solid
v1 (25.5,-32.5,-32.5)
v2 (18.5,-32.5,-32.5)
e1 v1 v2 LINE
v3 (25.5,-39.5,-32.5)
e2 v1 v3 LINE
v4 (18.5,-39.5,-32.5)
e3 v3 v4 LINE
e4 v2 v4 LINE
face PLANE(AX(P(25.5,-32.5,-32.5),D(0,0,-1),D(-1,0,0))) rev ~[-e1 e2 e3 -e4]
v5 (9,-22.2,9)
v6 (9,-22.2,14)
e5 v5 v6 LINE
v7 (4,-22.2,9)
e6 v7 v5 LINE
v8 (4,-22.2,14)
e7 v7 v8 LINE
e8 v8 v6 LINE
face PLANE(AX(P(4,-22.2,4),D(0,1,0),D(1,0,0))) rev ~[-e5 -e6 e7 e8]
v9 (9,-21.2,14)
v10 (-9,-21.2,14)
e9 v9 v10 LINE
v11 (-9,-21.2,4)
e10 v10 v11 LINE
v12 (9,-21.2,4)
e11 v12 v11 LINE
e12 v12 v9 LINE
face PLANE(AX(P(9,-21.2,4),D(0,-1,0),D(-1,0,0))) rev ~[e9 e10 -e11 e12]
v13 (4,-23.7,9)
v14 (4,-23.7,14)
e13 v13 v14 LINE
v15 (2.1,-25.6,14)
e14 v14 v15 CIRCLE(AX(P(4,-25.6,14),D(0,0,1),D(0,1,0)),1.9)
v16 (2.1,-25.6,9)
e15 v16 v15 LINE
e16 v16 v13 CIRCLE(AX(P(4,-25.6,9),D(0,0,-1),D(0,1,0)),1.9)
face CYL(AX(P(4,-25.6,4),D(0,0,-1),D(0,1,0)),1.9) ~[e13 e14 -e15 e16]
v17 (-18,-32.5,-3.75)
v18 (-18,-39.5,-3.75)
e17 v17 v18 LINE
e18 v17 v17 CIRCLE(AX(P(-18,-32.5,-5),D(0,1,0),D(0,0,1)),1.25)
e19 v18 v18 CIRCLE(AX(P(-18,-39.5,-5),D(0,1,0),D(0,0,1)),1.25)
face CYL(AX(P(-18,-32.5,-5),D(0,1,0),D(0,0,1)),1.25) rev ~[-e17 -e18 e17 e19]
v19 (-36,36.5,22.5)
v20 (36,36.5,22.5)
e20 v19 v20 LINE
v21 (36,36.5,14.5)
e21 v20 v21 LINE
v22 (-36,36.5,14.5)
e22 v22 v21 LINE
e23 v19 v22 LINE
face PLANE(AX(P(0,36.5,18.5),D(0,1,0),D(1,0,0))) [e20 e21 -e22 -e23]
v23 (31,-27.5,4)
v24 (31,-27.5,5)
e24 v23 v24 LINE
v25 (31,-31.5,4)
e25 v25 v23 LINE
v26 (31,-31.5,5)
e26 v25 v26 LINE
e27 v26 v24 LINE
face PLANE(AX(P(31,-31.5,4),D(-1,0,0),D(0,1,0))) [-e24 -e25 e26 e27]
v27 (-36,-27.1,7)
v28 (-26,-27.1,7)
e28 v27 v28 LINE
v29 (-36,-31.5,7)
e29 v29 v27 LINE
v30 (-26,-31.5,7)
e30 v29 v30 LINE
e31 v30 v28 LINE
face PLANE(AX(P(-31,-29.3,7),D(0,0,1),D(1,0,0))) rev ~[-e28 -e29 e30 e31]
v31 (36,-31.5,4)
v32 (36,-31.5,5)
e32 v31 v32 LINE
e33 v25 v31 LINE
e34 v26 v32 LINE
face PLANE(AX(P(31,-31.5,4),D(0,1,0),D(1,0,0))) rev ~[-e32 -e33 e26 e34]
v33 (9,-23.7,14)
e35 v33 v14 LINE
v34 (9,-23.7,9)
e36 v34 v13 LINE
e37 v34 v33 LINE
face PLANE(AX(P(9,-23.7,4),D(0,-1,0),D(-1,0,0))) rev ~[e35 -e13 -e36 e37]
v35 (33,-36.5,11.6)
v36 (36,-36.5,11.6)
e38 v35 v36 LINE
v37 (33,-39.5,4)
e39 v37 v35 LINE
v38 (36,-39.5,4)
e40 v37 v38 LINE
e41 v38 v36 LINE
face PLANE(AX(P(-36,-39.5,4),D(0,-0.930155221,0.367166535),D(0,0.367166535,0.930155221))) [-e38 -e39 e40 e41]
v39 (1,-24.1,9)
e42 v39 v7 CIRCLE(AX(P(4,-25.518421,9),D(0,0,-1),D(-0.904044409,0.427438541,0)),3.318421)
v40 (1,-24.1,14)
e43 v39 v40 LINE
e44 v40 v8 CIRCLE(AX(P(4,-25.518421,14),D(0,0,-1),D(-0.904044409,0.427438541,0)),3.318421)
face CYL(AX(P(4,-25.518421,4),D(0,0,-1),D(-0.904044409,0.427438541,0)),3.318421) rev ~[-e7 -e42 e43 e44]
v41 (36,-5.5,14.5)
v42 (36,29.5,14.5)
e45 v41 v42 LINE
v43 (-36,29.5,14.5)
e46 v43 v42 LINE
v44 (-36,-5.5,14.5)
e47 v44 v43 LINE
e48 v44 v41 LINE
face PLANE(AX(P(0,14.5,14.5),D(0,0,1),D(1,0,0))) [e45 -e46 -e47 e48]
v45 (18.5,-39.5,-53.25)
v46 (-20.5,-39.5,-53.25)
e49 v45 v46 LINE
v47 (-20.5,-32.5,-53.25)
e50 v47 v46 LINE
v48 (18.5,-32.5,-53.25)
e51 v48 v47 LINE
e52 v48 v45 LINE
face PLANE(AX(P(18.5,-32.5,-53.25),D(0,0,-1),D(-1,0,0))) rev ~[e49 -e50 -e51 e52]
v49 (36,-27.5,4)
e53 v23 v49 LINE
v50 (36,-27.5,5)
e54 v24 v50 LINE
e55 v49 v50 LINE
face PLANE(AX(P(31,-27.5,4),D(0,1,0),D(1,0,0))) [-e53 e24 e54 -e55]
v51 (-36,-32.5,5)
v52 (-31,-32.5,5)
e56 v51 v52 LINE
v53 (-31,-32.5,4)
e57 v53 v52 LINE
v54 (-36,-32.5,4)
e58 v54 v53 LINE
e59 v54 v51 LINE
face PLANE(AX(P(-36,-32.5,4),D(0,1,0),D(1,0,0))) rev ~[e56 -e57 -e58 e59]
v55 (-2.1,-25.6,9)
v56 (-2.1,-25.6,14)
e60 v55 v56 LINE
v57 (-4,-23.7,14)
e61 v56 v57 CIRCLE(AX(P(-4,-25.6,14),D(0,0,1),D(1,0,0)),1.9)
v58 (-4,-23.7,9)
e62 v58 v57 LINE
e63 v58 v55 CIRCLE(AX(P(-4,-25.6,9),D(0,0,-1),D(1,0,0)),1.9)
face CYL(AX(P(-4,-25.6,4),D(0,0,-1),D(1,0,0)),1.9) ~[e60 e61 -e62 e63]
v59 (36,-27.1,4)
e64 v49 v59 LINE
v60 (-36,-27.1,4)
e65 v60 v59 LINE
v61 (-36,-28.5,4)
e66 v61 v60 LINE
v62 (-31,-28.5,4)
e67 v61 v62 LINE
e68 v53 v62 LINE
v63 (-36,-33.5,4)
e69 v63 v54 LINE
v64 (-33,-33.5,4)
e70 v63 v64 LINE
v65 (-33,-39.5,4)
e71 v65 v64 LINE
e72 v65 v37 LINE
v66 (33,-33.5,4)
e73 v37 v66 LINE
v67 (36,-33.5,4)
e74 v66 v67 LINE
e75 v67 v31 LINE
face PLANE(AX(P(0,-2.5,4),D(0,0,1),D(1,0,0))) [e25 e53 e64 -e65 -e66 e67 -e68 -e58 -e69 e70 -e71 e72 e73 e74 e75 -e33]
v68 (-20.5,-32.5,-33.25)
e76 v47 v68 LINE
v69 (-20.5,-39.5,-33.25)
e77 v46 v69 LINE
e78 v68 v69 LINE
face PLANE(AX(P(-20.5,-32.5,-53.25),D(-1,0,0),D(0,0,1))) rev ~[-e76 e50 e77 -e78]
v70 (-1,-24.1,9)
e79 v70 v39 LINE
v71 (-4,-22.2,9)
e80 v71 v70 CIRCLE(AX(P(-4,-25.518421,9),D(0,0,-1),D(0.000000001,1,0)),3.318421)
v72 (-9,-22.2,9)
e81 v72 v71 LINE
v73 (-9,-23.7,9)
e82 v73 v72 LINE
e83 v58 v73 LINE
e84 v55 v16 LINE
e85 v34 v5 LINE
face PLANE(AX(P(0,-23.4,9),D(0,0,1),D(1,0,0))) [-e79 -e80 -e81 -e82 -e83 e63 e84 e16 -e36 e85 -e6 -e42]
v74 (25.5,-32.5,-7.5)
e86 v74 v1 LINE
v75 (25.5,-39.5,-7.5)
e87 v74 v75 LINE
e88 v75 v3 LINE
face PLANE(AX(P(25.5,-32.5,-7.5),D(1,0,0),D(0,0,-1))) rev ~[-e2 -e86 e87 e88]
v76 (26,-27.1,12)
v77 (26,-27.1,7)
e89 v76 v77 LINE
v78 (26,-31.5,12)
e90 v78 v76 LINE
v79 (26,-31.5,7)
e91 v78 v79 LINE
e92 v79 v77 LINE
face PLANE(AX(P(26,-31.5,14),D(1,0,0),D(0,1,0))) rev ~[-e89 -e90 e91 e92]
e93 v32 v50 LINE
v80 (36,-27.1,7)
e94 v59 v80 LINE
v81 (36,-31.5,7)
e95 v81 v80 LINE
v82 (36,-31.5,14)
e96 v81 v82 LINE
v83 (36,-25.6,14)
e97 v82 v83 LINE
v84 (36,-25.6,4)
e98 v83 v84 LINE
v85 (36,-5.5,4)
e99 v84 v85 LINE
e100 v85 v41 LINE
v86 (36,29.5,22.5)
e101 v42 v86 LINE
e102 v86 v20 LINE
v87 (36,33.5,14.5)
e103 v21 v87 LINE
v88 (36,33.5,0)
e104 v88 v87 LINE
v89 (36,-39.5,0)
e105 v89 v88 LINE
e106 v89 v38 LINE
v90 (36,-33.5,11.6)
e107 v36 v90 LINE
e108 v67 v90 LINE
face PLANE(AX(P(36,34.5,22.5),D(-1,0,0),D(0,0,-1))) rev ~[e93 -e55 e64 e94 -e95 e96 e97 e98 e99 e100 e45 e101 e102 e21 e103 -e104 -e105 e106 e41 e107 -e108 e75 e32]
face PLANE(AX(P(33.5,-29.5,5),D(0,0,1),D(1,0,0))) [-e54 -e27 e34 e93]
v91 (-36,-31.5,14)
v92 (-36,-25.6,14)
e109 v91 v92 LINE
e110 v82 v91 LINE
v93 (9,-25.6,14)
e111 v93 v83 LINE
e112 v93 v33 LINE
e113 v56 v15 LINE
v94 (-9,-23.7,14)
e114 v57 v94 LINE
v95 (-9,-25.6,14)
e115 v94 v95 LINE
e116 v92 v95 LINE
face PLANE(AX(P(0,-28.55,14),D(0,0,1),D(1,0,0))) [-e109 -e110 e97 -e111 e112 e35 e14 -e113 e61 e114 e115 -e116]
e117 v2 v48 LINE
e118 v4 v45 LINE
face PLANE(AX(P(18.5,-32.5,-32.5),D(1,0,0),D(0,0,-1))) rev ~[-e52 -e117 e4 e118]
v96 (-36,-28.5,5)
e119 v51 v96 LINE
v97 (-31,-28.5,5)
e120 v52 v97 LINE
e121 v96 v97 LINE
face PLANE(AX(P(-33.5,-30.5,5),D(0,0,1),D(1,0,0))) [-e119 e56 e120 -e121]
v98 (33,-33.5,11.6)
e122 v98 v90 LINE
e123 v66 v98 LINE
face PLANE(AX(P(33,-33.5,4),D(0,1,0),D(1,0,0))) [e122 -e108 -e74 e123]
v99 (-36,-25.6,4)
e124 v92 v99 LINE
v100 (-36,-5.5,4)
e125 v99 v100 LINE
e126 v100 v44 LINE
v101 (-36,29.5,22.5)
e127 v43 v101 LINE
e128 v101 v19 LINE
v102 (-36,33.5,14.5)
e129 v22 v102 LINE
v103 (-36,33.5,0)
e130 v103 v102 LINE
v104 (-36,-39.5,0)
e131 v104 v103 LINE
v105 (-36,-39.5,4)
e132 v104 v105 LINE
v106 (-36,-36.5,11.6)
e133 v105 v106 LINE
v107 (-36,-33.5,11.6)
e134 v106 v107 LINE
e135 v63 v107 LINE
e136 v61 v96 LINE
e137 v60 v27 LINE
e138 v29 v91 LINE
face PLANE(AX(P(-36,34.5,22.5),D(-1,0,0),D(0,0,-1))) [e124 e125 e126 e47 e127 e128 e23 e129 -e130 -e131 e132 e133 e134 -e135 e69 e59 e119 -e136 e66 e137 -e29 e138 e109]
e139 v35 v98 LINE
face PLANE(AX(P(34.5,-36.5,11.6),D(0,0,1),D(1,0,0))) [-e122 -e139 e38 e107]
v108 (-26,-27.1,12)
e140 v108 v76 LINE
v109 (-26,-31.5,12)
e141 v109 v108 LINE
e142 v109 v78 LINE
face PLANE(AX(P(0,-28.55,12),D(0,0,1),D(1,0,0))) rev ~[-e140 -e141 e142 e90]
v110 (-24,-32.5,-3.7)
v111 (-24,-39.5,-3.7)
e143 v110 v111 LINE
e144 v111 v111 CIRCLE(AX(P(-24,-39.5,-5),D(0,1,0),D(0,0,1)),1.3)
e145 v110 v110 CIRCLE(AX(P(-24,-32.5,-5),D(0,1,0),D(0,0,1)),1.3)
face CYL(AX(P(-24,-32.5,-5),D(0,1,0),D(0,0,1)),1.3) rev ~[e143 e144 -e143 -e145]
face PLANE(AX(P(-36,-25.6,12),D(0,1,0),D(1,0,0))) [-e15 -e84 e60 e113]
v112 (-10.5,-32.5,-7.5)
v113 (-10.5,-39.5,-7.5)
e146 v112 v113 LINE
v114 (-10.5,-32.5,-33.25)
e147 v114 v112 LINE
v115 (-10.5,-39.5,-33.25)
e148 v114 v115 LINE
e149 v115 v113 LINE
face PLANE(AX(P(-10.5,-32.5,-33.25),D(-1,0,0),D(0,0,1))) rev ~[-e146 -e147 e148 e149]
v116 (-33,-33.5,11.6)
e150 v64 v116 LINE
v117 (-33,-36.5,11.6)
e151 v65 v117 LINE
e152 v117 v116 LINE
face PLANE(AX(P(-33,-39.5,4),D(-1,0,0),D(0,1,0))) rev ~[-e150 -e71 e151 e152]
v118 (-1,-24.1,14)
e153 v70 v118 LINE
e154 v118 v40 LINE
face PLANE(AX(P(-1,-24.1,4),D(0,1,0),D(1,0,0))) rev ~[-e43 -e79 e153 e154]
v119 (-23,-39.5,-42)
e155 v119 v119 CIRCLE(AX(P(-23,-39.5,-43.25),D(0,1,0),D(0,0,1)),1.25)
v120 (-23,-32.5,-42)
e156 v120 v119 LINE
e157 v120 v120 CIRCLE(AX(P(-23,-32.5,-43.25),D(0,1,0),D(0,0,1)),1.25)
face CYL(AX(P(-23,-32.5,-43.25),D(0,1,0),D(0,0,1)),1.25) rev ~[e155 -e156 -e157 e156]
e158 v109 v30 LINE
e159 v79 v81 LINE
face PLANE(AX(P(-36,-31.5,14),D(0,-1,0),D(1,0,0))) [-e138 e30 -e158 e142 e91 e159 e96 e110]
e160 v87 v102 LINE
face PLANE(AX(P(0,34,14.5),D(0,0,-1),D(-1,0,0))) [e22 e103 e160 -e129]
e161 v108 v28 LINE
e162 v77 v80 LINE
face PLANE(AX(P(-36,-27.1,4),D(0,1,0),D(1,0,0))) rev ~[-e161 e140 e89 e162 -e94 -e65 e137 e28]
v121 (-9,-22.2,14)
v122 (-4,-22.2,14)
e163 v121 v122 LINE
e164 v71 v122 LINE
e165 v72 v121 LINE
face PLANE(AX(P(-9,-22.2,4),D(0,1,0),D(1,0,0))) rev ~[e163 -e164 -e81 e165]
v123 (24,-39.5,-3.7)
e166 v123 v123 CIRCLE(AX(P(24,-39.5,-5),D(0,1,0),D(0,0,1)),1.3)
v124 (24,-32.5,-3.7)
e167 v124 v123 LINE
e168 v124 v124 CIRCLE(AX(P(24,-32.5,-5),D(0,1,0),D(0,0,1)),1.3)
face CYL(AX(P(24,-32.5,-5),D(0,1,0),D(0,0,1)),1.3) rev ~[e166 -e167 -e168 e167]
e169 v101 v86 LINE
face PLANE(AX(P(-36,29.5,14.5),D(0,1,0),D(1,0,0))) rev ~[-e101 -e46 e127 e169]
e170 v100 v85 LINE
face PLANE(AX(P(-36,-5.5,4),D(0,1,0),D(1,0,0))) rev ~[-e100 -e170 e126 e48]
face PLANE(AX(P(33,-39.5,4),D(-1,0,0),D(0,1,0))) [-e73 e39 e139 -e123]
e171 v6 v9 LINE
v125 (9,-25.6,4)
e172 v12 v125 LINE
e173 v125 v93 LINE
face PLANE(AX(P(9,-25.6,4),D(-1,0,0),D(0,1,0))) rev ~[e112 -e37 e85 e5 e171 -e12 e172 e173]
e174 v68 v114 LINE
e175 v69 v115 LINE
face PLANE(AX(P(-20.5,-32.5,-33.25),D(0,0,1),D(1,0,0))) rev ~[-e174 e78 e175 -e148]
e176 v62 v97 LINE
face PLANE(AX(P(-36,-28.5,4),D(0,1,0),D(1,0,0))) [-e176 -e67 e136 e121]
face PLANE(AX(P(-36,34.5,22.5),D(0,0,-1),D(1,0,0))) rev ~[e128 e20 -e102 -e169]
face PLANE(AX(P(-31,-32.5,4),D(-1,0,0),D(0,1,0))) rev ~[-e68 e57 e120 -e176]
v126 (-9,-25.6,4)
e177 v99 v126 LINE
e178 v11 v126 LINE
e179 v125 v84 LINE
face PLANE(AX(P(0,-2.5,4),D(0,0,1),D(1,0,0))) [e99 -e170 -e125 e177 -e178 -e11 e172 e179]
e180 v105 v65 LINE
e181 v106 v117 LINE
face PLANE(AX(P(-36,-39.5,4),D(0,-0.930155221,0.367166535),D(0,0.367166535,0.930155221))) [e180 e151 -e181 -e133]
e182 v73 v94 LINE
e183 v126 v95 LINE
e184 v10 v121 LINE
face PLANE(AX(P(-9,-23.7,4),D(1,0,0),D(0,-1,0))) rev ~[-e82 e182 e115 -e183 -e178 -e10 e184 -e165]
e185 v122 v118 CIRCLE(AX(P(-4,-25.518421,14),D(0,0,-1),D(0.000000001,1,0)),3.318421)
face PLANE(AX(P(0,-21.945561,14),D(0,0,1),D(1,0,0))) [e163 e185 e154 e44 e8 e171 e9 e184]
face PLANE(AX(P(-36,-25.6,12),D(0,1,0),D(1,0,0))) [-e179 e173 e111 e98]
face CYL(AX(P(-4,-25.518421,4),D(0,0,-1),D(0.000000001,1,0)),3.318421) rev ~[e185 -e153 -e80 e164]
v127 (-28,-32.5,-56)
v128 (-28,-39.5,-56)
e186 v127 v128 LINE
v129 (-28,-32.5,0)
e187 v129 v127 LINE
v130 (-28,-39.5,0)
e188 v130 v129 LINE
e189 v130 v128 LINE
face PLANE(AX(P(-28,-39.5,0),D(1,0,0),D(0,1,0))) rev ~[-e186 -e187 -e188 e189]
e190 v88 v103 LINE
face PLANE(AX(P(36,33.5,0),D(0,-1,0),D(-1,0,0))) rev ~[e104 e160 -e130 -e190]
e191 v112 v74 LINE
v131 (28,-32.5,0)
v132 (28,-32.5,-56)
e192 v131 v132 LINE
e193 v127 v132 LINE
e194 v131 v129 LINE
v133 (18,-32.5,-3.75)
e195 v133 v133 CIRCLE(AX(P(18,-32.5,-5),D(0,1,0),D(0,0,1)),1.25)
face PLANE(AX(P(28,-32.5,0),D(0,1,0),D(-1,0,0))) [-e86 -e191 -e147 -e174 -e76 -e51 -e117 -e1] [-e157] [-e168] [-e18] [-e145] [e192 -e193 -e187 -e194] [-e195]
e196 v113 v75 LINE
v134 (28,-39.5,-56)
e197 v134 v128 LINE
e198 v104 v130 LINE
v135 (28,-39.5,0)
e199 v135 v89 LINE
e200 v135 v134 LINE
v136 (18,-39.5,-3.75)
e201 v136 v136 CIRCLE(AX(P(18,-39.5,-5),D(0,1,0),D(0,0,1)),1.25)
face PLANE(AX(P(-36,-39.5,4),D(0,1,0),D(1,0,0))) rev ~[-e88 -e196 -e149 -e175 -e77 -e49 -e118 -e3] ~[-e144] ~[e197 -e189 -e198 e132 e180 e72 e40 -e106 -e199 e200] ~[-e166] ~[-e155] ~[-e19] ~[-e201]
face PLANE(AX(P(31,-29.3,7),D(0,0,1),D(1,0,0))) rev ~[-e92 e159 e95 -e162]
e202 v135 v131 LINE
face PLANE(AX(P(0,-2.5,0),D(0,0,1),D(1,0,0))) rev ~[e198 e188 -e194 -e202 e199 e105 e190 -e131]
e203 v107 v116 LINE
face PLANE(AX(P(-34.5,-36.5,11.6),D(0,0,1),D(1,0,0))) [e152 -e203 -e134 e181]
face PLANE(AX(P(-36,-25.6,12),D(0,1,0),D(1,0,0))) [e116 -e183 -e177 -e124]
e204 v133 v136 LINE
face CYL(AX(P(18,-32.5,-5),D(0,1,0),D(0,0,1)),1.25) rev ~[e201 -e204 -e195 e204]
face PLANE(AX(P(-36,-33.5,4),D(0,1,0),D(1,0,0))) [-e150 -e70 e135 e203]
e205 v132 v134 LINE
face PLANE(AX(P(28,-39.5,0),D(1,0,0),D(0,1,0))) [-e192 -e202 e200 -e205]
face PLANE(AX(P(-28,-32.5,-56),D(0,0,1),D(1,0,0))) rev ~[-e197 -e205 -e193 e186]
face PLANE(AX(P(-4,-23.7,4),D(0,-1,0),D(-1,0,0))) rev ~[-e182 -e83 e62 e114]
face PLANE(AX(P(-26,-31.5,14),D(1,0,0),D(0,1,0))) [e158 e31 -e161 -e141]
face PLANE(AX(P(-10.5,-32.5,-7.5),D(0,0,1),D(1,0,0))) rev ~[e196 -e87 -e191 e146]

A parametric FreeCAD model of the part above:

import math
import FreeCAD as App
import Part
import Sketcher

V = App.Vector
Q = App.Units.Quantity

doc = App.newDocument("Part")
params = doc.addObject("Spreadsheet::Sheet", "Params")
for row, (alias, value) in enumerate([
    ("sketch1_width", "72 mm"),
    ("sketch1_height", "74 mm"),
    ("pad1_length", "4 mm"),
    ("sketch2_width", "3 mm"),
    ("sketch2_height", "6 mm"),
    ("pad2_length", "7.6 mm"),
    ("sketch3_width", "3 mm"),
    ("sketch3_height", "7.6 mm"),
    ("sketch4_width", "5 mm"),
    ("sketch4_height", "4 mm"),
    ("pad3_length", "1 mm"),
    ("sketch5_width", "72 mm"),
    ("sketch5_height", "1.5 mm"),
    ("pad4_length", "8 mm"),
    ("sketch6_width", "72 mm"),
    ("sketch6_height", "5.9 mm"),
    ("pad5_length", "2 mm"),
    ("sketch7_width", "10 mm"),
    ("sketch7_height", "4.4 mm"),
    ("pad6_length", "7 mm"),
    ("sketch8_radius", "1.9 mm"),
    ("sketch8_width", "5 mm"),
    ("sketch8_width2", "2 mm"),
    ("sketch8_width3", "18 mm"),
    ("sketch8_height", "1 mm"),
    ("pad7_length", "10 mm"),
    ("sketch9_width", "18 mm"),
    ("sketch9_height", "4.4 mm"),
    ("pad8_length", "5 mm"),
    ("sketch10_width", "72 mm"),
    ("sketch10_height", "40 mm"),
    ("pad9_length", "10.5 mm"),
    ("sketch11_width", "72 mm"),
    ("sketch11_height", "5 mm"),
    ("pad10_length", "8 mm"),
    ("sketch12_width", "72 mm"),
    ("sketch12_height", "8 mm"),
    ("pad11_length", "2 mm"),
    ("sketch13_width", "72 mm"),
    ("sketch13_height", "1 mm"),
    ("pocket2_length", "14.5 mm"),
    ("sketch14_width", "56 mm"),
    ("sketch14_height", "7 mm"),
    ("pad12_length", "65 mm"),
    ("sketch15_width", "56 mm"),
    ("sketch15_height", "9 mm"),
    ("sketch16_diameter", "2.5 mm"),
    ("sketch16_diameter2", "2.6 mm"),
    ("sketch16_width", "39 mm"),
    ("sketch16_width2", "10 mm"),
    ("sketch16_width3", "36 mm"),
    ("pocket4_length", "10 mm"),
], start=1):
    params.set(f"A{row}", alias)
    params.set(f"B{row}", "=" + value)
    params.setAlias(f"B{row}", alias)

body = doc.addObject("PartDesign::Body", "Body")

# Sketch on XY plane
sketch1 = doc.addObject("Sketcher::SketchObject", "Sketch")
body.addObject(sketch1)
sketch1.AttachmentSupport = (doc.XY_Plane, [""])
sketch1.MapMode = "FlatFace"
sketch1.addGeometry([
    Part.LineSegment(V(-36, 34, 0), V(-36, -40, 0)),
    Part.LineSegment(V(-36, -40, 0), V(36, -40, 0)),
    Part.LineSegment(V(36, -40, 0), V(36, 34, 0)),
    Part.LineSegment(V(36, 34, 0), V(-36, 34, 0)),
], False)
sketch1.addConstraint([
    Sketcher.Constraint("Coincident", 0, 2, 1, 1),
    Sketcher.Constraint("Coincident", 1, 2, 2, 1),
    Sketcher.Constraint("Coincident", 2, 2, 3, 1),
    Sketcher.Constraint("Coincident", 3, 2, 0, 1),
    Sketcher.Constraint("Vertical", 0),
    Sketcher.Constraint("Horizontal", 1),
    Sketcher.Constraint("Vertical", 2),
    Sketcher.Constraint("Horizontal", 3),
    Sketcher.Constraint("DistanceX", 1, 1, 1, 2, Q("72 mm")),
    Sketcher.Constraint("DistanceY", 0, 2, 0, 1, Q("74 mm")),
    Sketcher.Constraint("DistanceX", 0, 2, -1, 1, Q("36 mm")),
    Sketcher.Constraint("DistanceY", 0, 2, -1, 1, Q("39.5 mm")),
])
sketch1.setExpression("Constraints[8]", "Params.sketch1_width")
sketch1.setExpression("Constraints[9]", "Params.sketch1_height")
pad1 = doc.addObject("PartDesign::Pad", "Pad")
body.addObject(pad1)
pad1.Profile = sketch1
pad1.setExpression("Length", "Params.pad1_length")

# Sketch on XY plane
sketch2 = doc.addObject("Sketcher::SketchObject", "Sketch001")
body.addObject(sketch2)
sketch2.AttachmentSupport = (doc.XY_Plane, [""])
sketch2.MapMode = "FlatFace"
sketch2.AttachmentOffset = App.Placement(V(0, 0, 4), App.Rotation())
sketch2.addGeometry([
    Part.LineSegment(V(-36, -33.5, 0), V(-36, -39.5, 0)),  # 0
    Part.LineSegment(V(-36, -39.5, 0), V(-33, -39.5, 0)),  # 1
    Part.LineSegment(V(-33, -39.5, 0), V(-33, -33.5, 0)),  # 2
    Part.LineSegment(V(-33, -33.5, 0), V(-36, -33.5, 0)),  # 3
    Part.LineSegment(V(33, -33.5, 0), V(33, -39.5, 0)),  # 4
    Part.LineSegment(V(33, -39.5, 0), V(36, -39.5, 0)),  # 5
    Part.LineSegment(V(36, -39.5, 0), V(36, -33.5, 0)),  # 6
    Part.LineSegment(V(36, -33.5, 0), V(33, -33.5, 0)),  # 7
], False)
sketch2.addConstraint([
    Sketcher.Constraint("Coincident", 0, 2, 1, 1),
    Sketcher.Constraint("Coincident", 1, 2, 2, 1),
    Sketcher.Constraint("Coincident", 2, 2, 3, 1),
    Sketcher.Constraint("Coincident", 3, 2, 0, 1),
    Sketcher.Constraint("Coincident", 4, 2, 5, 1),
    Sketcher.Constraint("Coincident", 5, 2, 6, 1),
    Sketcher.Constraint("Coincident", 6, 2, 7, 1),
    Sketcher.Constraint("Coincident", 7, 2, 4, 1),
    Sketcher.Constraint("Vertical", 0),
    Sketcher.Constraint("Horizontal", 1),
    Sketcher.Constraint("Vertical", 2),
    Sketcher.Constraint("Horizontal", 3),
    Sketcher.Constraint("Vertical", 4),
    Sketcher.Constraint("Horizontal", 5),
    Sketcher.Constraint("Vertical", 6),
    Sketcher.Constraint("Horizontal", 7),
    Sketcher.Constraint("Symmetric", 1, 2, 4, 2, -2),
    Sketcher.Constraint("Symmetric", 3, 2, 6, 2, -2),
    Sketcher.Constraint("DistanceX", 1, 1, 1, 2, Q("3 mm")),
    Sketcher.Constraint("DistanceY", 0, 2, 0, 1, Q("6 mm")),
    Sketcher.Constraint("DistanceX", 0, 2, -1, 1, Q("36 mm")),
    Sketcher.Constraint("DistanceY", 0, 2, -1, 1, Q("39.5 mm")),
])
sketch2.setExpression("Constraints[18]", "Params.sketch2_width")
sketch2.setExpression("Constraints[19]", "Params.sketch2_height")
pad2 = doc.addObject("PartDesign::Pad", "Pad001")
body.addObject(pad2)
pad2.Profile = sketch2
pad2.setExpression("Length", "Params.pad2_length")

# Sketch on YZ plane
sketch3 = doc.addObject("Sketcher::SketchObject", "Sketch002")
body.addObject(sketch3)
sketch3.AttachmentSupport = (doc.YZ_Plane, [""])
sketch3.MapMode = "FlatFace"
sketch3.AttachmentOffset = App.Placement(V(0, 0, -36), App.Rotation())
sketch3.addGeometry([
    Part.LineSegment(V(-36.5, 11.6, 0), V(-39.5, 4, 0)),
    Part.LineSegment(V(-39.5, 4, 0), V(-39.5, 11.6, 0)),
    Part.LineSegment(V(-39.5, 11.6, 0), V(-36.5, 11.6, 0)),
], False)
sketch3.addConstraint([
    Sketcher.Constraint("Coincident", 0, 2, 1, 1),
    Sketcher.Constraint("Coincident", 1, 2, 2, 1),
    Sketcher.Constraint("Coincident", 2, 2, 0, 1),
    Sketcher.Constraint("Vertical", 1),
    Sketcher.Constraint("Horizontal", 2),
    Sketcher.Constraint("DistanceX", 2, 1, 2, 2, Q("3 mm")),
    Sketcher.Constraint("DistanceY", 1, 1, 1, 2, Q("7.6 mm")),
    Sketcher.Constraint("DistanceY", -1, 1, 0, 2, Q("4 mm")),
    Sketcher.Constraint("DistanceX", 0, 2, -1, 1, Q("39.5 mm")),
])
sketch3.setExpression("Constraints[5]", "Params.sketch3_width")
sketch3.setExpression("Constraints[6]", "Params.sketch3_height")
pocket1 = doc.addObject("PartDesign::Pocket", "Pocket")
body.addObject(pocket1)
pocket1.Profile = sketch3
pocket1.Type = "ThroughAll"
pocket1.Reversed = True

# Sketch on XY plane
sketch4 = doc.addObject("Sketcher::SketchObject", "Sketch003")
body.addObject(sketch4)
sketch4.AttachmentSupport = (doc.XY_Plane, [""])
sketch4.MapMode = "FlatFace"
sketch4.AttachmentOffset = App.Placement(V(0, 0, 4), App.Rotation())
sketch4.addGeometry([
    Part.LineSegment(V(-36, -28.5, 0), V(-36, -32.5, 0)),  # 0
    Part.LineSegment(V(-36, -32.5, 0), V(-31, -32.5, 0)),  # 1
    Part.LineSegment(V(-31, -32.5, 0), V(-31, -28.5, 0)),  # 2
    Part.LineSegment(V(-31, -28.5, 0), V(-36, -28.5, 0)),  # 3
    Part.LineSegment(V(31, -27.5, 0), V(31, -31.5, 0)),  # 4
    Part.LineSegment(V(31, -31.5, 0), V(36, -31.5, 0)),  # 5
    Part.LineSegment(V(36, -31.5, 0), V(36, -27.5, 0)),  # 6
    Part.LineSegment(V(36, -27.5, 0), V(31, -27.5, 0)),  # 7
], False)
sketch4.addConstraint([
    Sketcher.Constraint("Coincident", 0, 2, 1, 1),
    Sketcher.Constraint("Coincident", 1, 2, 2, 1),
    Sketcher.Constraint("Coincident", 2, 2, 3, 1),
    Sketcher.Constraint("Coincident", 3, 2, 0, 1),
    Sketcher.Constraint("Coincident", 4, 2, 5, 1),
    Sketcher.Constraint("Coincident", 5, 2, 6, 1),
    Sketcher.Constraint("Coincident", 6, 2, 7, 1),
    Sketcher.Constraint("Coincident", 7, 2, 4, 1),
    Sketcher.Constraint("Vertical", 0),
    Sketcher.Constraint("Horizontal", 1),
    Sketcher.Constraint("Vertical", 2),
    Sketcher.Constraint("Horizontal", 3),
    Sketcher.Constraint("Vertical", 4),
    Sketcher.Constraint("Horizontal", 5),
    Sketcher.Constraint("Vertical", 6),
    Sketcher.Constraint("Horizontal", 7),
    Sketcher.Constraint("Equal", 3, 5),
    Sketcher.Constraint("Equal", 2, 4),
    Sketcher.Constraint("DistanceX", 1, 1, 1, 2, Q("5 mm")),
    Sketcher.Constraint("DistanceY", 0, 2, 0, 1, Q("4 mm")),
    Sketcher.Constraint("DistanceX", 0, 2, -1, 1, Q("36 mm")),
    Sketcher.Constraint("DistanceX", -1, 1, 4, 2, Q("31 mm")),
    Sketcher.Constraint("DistanceY", 1, 2, 4, 2, Q("1 mm")),
    Sketcher.Constraint("DistanceY", 0, 2, -1, 1, Q("32.5 mm")),
])
sketch4.setExpression("Constraints[18]", "Params.sketch4_width")
sketch4.setExpression("Constraints[19]", "Params.sketch4_height")
pad3 = doc.addObject("PartDesign::Pad", "Pad002")
body.addObject(pad3)
pad3.Profile = sketch4
pad3.setExpression("Length", "Params.pad3_length")

# Sketch on XY plane
sketch5 = doc.addObject("Sketcher::SketchObject", "Sketch004")
body.addObject(sketch5)
sketch5.AttachmentSupport = (doc.XY_Plane, [""])
sketch5.MapMode = "FlatFace"
sketch5.AttachmentOffset = App.Placement(V(0, 0, 4), App.Rotation())
sketch5.addGeometry([
    Part.LineSegment(V(-36, -25.6, 0), V(-36, -27.1, 0)),
    Part.LineSegment(V(-36, -27.1, 0), V(36, -27.1, 0)),
    Part.LineSegment(V(36, -27.1, 0), V(36, -25.6, 0)),
    Part.LineSegment(V(36, -25.6, 0), V(-36, -25.6, 0)),
], False)
sketch5.addConstraint([
    Sketcher.Constraint("Coincident", 0, 2, 1, 1),
    Sketcher.Constraint("Coincident", 1, 2, 2, 1),
    Sketcher.Constraint("Coincident", 2, 2, 3, 1),
    Sketcher.Constraint("Coincident", 3, 2, 0, 1),
    Sketcher.Constraint("Vertical", 0),
    Sketcher.Constraint("Horizontal", 1),
    Sketcher.Constraint("Vertical", 2),
    Sketcher.Constraint("Horizontal", 3),
    Sketcher.Constraint("DistanceX", 1, 1, 1, 2, Q("72 mm")),
    Sketcher.Constraint("DistanceY", 0, 2, 0, 1, Q("1.5 mm")),
    Sketcher.Constraint("DistanceX", 0, 2, -1, 1, Q("36 mm")),
    Sketcher.Constraint("DistanceY", 0, 2, -1, 1, Q("27.1 mm")),
])
sketch5.setExpression("Constraints[8]", "Params.sketch5_width")
sketch5.setExpression("Constraints[9]", "Params.sketch5_height")
pad4 = doc.addObject("PartDesign::Pad", "Pad003")
body.addObject(pad4)
pad4.Profile = sketch5
pad4.setExpression("Length", "Params.pad4_length")

# Sketch on XY plane
sketch6 = doc.addObject("Sketcher::SketchObject", "Sketch005")
body.addObject(sketch6)
sketch6.AttachmentSupport = (doc.XY_Plane, [""])
sketch6.MapMode = "FlatFace"
sketch6.AttachmentOffset = App.Placement(V(0, 0, 12), App.Rotation())
sketch6.addGeometry([
    Part.LineSegment(V(-36, -26, 0), V(-36, -32, 0)),
    Part.LineSegment(V(-36, -32, 0), V(36, -32, 0)),
    Part.LineSegment(V(36, -32, 0), V(36, -26, 0)),
    Part.LineSegment(V(36, -26, 0), V(-36, -26, 0)),
], False)
sketch6.addConstraint([
    Sketcher.Constraint("Coincident", 0, 2, 1, 1),
    Sketcher.Constraint("Coincident", 1, 2, 2, 1),
    Sketcher.Constraint("Coincident", 2, 2, 3, 1),
    Sketcher.Constraint("Coincident", 3, 2, 0, 1),
    Sketcher.Constraint("Vertical", 0),
    Sketcher.Constraint("Horizontal", 1),
    Sketcher.Constraint("Vertical", 2),
    Sketcher.Constraint("Horizontal", 3),
    Sketcher.Constraint("DistanceX", 1, 1, 1, 2, Q("72 mm")),
    Sketcher.Constraint("DistanceY", 0, 2, 0, 1, Q("5.9 mm")),
    Sketcher.Constraint("DistanceX", 0, 2, -1, 1, Q("36 mm")),
    Sketcher.Constraint("DistanceY", 0, 2, -1, 1, Q("31.5 mm")),
])
sketch6.setExpression("Constraints[8]", "Params.sketch6_width")
sketch6.setExpression("Constraints[9]", "Params.sketch6_height")
pad5 = doc.addObject("PartDesign::Pad", "Pad004")
body.addObject(pad5)
pad5.Profile = sketch6
pad5.setExpression("Length", "Params.pad5_length")

# Sketch on XY plane
sketch7 = doc.addObject("Sketcher::SketchObject", "Sketch006")
body.addObject(sketch7)
sketch7.AttachmentSupport = (doc.XY_Plane, [""])
sketch7.MapMode = "FlatFace"
sketch7.AttachmentOffset = App.Placement(V(0, 0, 14), App.Rotation())
sketch7.addGeometry([
    Part.LineSegment(V(-36, -27.1, 0), V(-36, -31.5, 0)),  # 0
    Part.LineSegment(V(-36, -31.5, 0), V(-26, -31.5, 0)),  # 1
    Part.LineSegment(V(-26, -31.5, 0), V(-26, -27.1, 0)),  # 2
    Part.LineSegment(V(-26, -27.1, 0), V(-36, -27.1, 0)),  # 3
    Part.LineSegment(V(26, -27.1, 0), V(26, -31.5, 0)),  # 4
    Part.LineSegment(V(26, -31.5, 0), V(36, -31.5, 0)),  # 5
    Part.LineSegment(V(36, -31.5, 0), V(36, -27.1, 0)),  # 6
    Part.LineSegment(V(36, -27.1, 0), V(26, -27.1, 0)),  # 7
], False)
sketch7.addConstraint([
    Sketcher.Constraint("Coincident", 0, 2, 1, 1),
    Sketcher.Constraint("Coincident", 1, 2, 2, 1),
    Sketcher.Constraint("Coincident", 2, 2, 3, 1),
    Sketcher.Constraint("Coincident", 3, 2, 0, 1),
    Sketcher.Constraint("Coincident", 4, 2, 5, 1),
    Sketcher.Constraint("Coincident", 5, 2, 6, 1),
    Sketcher.Constraint("Coincident", 6, 2, 7, 1),
    Sketcher.Constraint("Coincident", 7, 2, 4, 1),
    Sketcher.Constraint("Vertical", 0),
    Sketcher.Constraint("Horizontal", 1),
    Sketcher.Constraint("Vertical", 2),
    Sketcher.Constraint("Horizontal", 3),
    Sketcher.Constraint("Vertical", 4),
    Sketcher.Constraint("Horizontal", 5),
    Sketcher.Constraint("Vertical", 6),
    Sketcher.Constraint("Horizontal", 7),
    Sketcher.Constraint("Symmetric", 1, 2, 4, 2, -2),
    Sketcher.Constraint("Symmetric", 3, 2, 6, 2, -2),
    Sketcher.Constraint("DistanceX", 1, 1, 1, 2, Q("10 mm")),
    Sketcher.Constraint("DistanceY", 0, 2, 0, 1, Q("4.4 mm")),
    Sketcher.Constraint("DistanceX", 0, 2, -1, 1, Q("36 mm")),
    Sketcher.Constraint("DistanceY", 0, 2, -1, 1, Q("31.5 mm")),
])
sketch7.setExpression("Constraints[18]", "Params.sketch7_width")
sketch7.setExpression("Constraints[19]", "Params.sketch7_height")
pad6 = doc.addObject("PartDesign::Pad", "Pad005")
body.addObject(pad6)
pad6.Profile = sketch7
pad6.setExpression("Length", "Params.pad6_length")
pad6.Reversed = True

# Sketch on XY plane
sketch8 = doc.addObject("Sketcher::SketchObject", "Sketch007")
body.addObject(sketch8)
sketch8.AttachmentSupport = (doc.XY_Plane, [""])
sketch8.MapMode = "FlatFace"
sketch8.AttachmentOffset = App.Placement(V(0, 0, 4), App.Rotation())
sketch8.addGeometry([
    Part.LineSegment(V(-9, -23.7, 0), V(-9, -25.6, 0)),  # 0
    Part.LineSegment(V(-9, -25.6, 0), V(-2.1, -25.6, 0)),  # 1
    Part.ArcOfCircle(Part.Circle(V(-4, -25.6, 0), V(0, 0, 1), 1.9), math.radians(0), math.radians(90)),  # 2
    Part.LineSegment(V(-4, -23.7, 0), V(-9, -23.7, 0)),  # 3
    Part.LineSegment(V(-9, -21.2, 0), V(-9, -22.2, 0)),  # 4
    Part.LineSegment(V(-9, -22.2, 0), V(-4, -22.2, 0)),  # 5
    Part.ArcOfCircle(Part.Circle(V(-4, -25.5, 0), V(0, 0, 1), 3.3), math.radians(25), math.radians(90)),  # 6
    Part.LineSegment(V(-1, -24.1, 0), V(1, -24.1, 0)),  # 7
    Part.ArcOfCircle(Part.Circle(V(4, -25.5, 0), V(0, 0, 1), 3.3), math.radians(90), math.radians(155)),  # 8
    Part.LineSegment(V(4, -22.2, 0), V(9, -22.2, 0)),  # 9
    Part.LineSegment(V(9, -22.2, 0), V(9, -21.2, 0)),  # 10
    Part.LineSegment(V(9, -21.2, 0), V(-9, -21.2, 0)),  # 11
    Part.ArcOfCircle(Part.Circle(V(4, -25.6, 0), V(0, 0, 1), 1.9), math.radians(90), math.radians(180)),  # 12
    Part.LineSegment(V(2.1, -25.6, 0), V(9, -25.6, 0)),  # 13
    Part.LineSegment(V(9, -25.6, 0), V(9, -23.7, 0)),  # 14
    Part.LineSegment(V(9, -23.7, 0), V(4, -23.7, 0)),  # 15
], False)
sketch8.addConstraint([
    Sketcher.Constraint("Coincident", 0, 2, 1, 1),
    Sketcher.Constraint("Coincident", 1, 2, 2, 1),
    Sketcher.Constraint("Tangent", 2, 2, 3, 1),
    Sketcher.Constraint("Coincident", 3, 2, 0, 1),
    Sketcher.Constraint("Coincident", 4, 2, 5, 1),
    Sketcher.Constraint("Tangent", 5, 2, 6, 2),
    Sketcher.Constraint("Coincident", 6, 1, 7, 1),
    Sketcher.Constraint("Coincident", 7, 2, 8, 2),
    Sketcher.Constraint("Tangent", 8, 1, 9, 1),
    Sketcher.Constraint("Coincident", 9, 2, 10, 1),
    Sketcher.Constraint("Coincident", 10, 2, 11, 1),
    Sketcher.Constraint("Coincident", 11, 2, 4, 1),
    Sketcher.Constraint("Coincident", 12, 2, 13, 1),
    Sketcher.Constraint("Coincident", 13, 2, 14, 1),
    Sketcher.Constraint("Coincident", 14, 2, 15, 1),
    Sketcher.Constraint("Tangent", 15, 2, 12, 1),
    Sketcher.Constraint("Vertical", 0),
    Sketcher.Constraint("Horizontal", 1),
    Sketcher.Constraint("Horizontal", 3),
    Sketcher.Constraint("Vertical", 4),
    Sketcher.Constraint("Horizontal", 5),
    Sketcher.Constraint("Horizontal", 7),
    Sketcher.Constraint("Horizontal", 9),
    Sketcher.Constraint("Vertical", 10),
    Sketcher.Constraint("Horizontal", 11),
    Sketcher.Constraint("Horizontal", 13),
    Sketcher.Constraint("Vertical", 14),
    Sketcher.Constraint("Horizontal", 15),
    Sketcher.Constraint("Equal", 6, 8),
    Sketcher.Constraint("Equal", 2, 12),
    Sketcher.Constraint("Symmetric", 6, 3, 8, 3, -2),
    Sketcher.Constraint("Symmetric", 2, 3, 12, 3, -2),
    Sketcher.Constraint("Symmetric", 0, 2, 13, 2, -2),
    Sketcher.Constraint("Horizontal", 12, 3, 0, 2),
    Sketcher.Constraint("Vertical", 2, 3, 6, 3),
    Sketcher.Constraint("Vertical", 3, 2, 4, 2),
    Sketcher.Constraint("Vertical", 10, 2, 13, 2),
    Sketcher.Constraint("Radius", 2, Q("1.9 mm")),
    Sketcher.Constraint("DistanceX", 3, 2, 3, 1, Q("5 mm")),
    Sketcher.Constraint("DistanceX", 7, 1, 7, 2, Q("2 mm")),
    Sketcher.Constraint("DistanceX", 11, 2, 11, 1, Q("18 mm")),
    Sketcher.Constraint("DistanceY", 4, 2, 4, 1, Q("1 mm")),
    Sketcher.Constraint("DistanceY", 2, 3, -1, 1, Q("25.6 mm")),
    Sketcher.Constraint("DistanceY", 4, 2, -1, 1, Q("22.2 mm")),
    Sketcher.Constraint("DistanceY", 6, 1, -1, 1, Q("24.1 mm")),
])
sketch8.setExpression("Constraints[37]", "Params.sketch8_radius")
sketch8.setExpression("Constraints[38]", "Params.sketch8_width")
sketch8.setExpression("Constraints[39]", "Params.sketch8_width2")
sketch8.setExpression("Constraints[40]", "Params.sketch8_width3")
sketch8.setExpression("Constraints[41]", "Params.sketch8_height")
pad7 = doc.addObject("PartDesign::Pad", "Pad006")
body.addObject(pad7)
pad7.Profile = sketch8
pad7.setExpression("Length", "Params.pad7_length")

# Sketch on XY plane
sketch9 = doc.addObject("Sketcher::SketchObject", "Sketch008")
body.addObject(sketch9)
sketch9.AttachmentSupport = (doc.XY_Plane, [""])
sketch9.MapMode = "FlatFace"
sketch9.AttachmentOffset = App.Placement(V(0, 0, 4), App.Rotation())
sketch9.addGeometry([
    Part.LineSegment(V(-9, -21.2, 0), V(-9, -25.6, 0)),
    Part.LineSegment(V(-9, -25.6, 0), V(9, -25.6, 0)),
    Part.LineSegment(V(9, -25.6, 0), V(9, -21.2, 0)),
    Part.LineSegment(V(9, -21.2, 0), V(-9, -21.2, 0)),
], False)
sketch9.addConstraint([
    Sketcher.Constraint("Coincident", 0, 2, 1, 1),
    Sketcher.Constraint("Coincident", 1, 2, 2, 1),
    Sketcher.Constraint("Coincident", 2, 2, 3, 1),
    Sketcher.Constraint("Coincident", 3, 2, 0, 1),
    Sketcher.Constraint("Vertical", 0),
    Sketcher.Constraint("Horizontal", 1),
    Sketcher.Constraint("Vertical", 2),
    Sketcher.Constraint("Horizontal", 3),
    Sketcher.Constraint("DistanceX", 1, 1, 1, 2, Q("18 mm")),
    Sketcher.Constraint("DistanceY", 0, 2, 0, 1, Q("4.4 mm")),
    Sketcher.Constraint("DistanceX", 0, 2, -1, 1, Q("9 mm")),
    Sketcher.Constraint("DistanceY", 0, 2, -1, 1, Q("25.6 mm")),
])
sketch9.setExpression("Constraints[8]", "Params.sketch9_width")
sketch9.setExpression("Constraints[9]", "Params.sketch9_height")
pad8 = doc.addObject("PartDesign::Pad", "Pad007")
body.addObject(pad8)
pad8.Profile = sketch9
pad8.setExpression("Length", "Params.pad8_length")

# Sketch on XY plane
sketch10 = doc.addObject("Sketcher::SketchObject", "Sketch009")
body.addObject(sketch10)
sketch10.AttachmentSupport = (doc.XY_Plane, [""])
sketch10.MapMode = "FlatFace"
sketch10.AttachmentOffset = App.Placement(V(0, 0, 4), App.Rotation())
sketch10.addGeometry([
    Part.LineSegment(V(-36, 34, 0), V(-36, -6, 0)),
    Part.LineSegment(V(-36, -6, 0), V(36, -6, 0)),
    Part.LineSegment(V(36, -6, 0), V(36, 34, 0)),
    Part.LineSegment(V(36, 34, 0), V(-36, 34, 0)),
], False)
sketch10.addConstraint([
    Sketcher.Constraint("Coincident", 0, 2, 1, 1),
    Sketcher.Constraint("Coincident", 1, 2, 2, 1),
    Sketcher.Constraint("Coincident", 2, 2, 3, 1),
    Sketcher.Constraint("Coincident", 3, 2, 0, 1),
    Sketcher.Constraint("Vertical", 0),
    Sketcher.Constraint("Horizontal", 1),
    Sketcher.Constraint("Vertical", 2),
    Sketcher.Constraint("Horizontal", 3),
    Sketcher.Constraint("DistanceX", 1, 1, 1, 2, Q("72 mm")),
    Sketcher.Constraint("DistanceY", 0, 2, 0, 1, Q("40 mm")),
    Sketcher.Constraint("DistanceX", 0, 2, -1, 1, Q("36 mm")),
    Sketcher.Constraint("DistanceY", 0, 2, -1, 1, Q("5.5 mm")),
])
sketch10.setExpression("Constraints[8]", "Params.sketch10_width")
sketch10.setExpression("Constraints[9]", "Params.sketch10_height")
pad9 = doc.addObject("PartDesign::Pad", "Pad008")
body.addObject(pad9)
pad9.Profile = sketch10
pad9.setExpression("Length", "Params.pad9_length")

# Sketch on XY plane
sketch11 = doc.addObject("Sketcher::SketchObject", "Sketch010")
body.addObject(sketch11)
sketch11.AttachmentSupport = (doc.XY_Plane, [""])
sketch11.MapMode = "FlatFace"
sketch11.AttachmentOffset = App.Placement(V(0, 0, 14.5), App.Rotation())
sketch11.addGeometry([
    Part.LineSegment(V(-36, 34, 0), V(-36, 30, 0)),
    Part.LineSegment(V(-36, 30, 0), V(36, 30, 0)),
    Part.LineSegment(V(36, 30, 0), V(36, 34, 0)),
    Part.LineSegment(V(36, 34, 0), V(-36, 34, 0)),
], False)
sketch11.addConstraint([
    Sketcher.Constraint("Coincident", 0, 2, 1, 1),
    Sketcher.Constraint("Coincident", 1, 2, 2, 1),
    Sketcher.Constraint("Coincident", 2, 2, 3, 1),
    Sketcher.Constraint("Coincident", 3, 2, 0, 1),
    Sketcher.Constraint("Vertical", 0),
    Sketcher.Constraint("Horizontal", 1),
    Sketcher.Constraint("Vertical", 2),
    Sketcher.Constraint("Horizontal", 3),
    Sketcher.Constraint("DistanceX", 1, 1, 1, 2, Q("72 mm")),
    Sketcher.Constraint("DistanceY", 0, 2, 0, 1, Q("5 mm")),
    Sketcher.Constraint("DistanceX", 0, 2, -1, 1, Q("36 mm")),
    Sketcher.Constraint("DistanceY", -1, 1, 0, 2, Q("29.5 mm")),
])
sketch11.setExpression("Constraints[8]", "Params.sketch11_width")
sketch11.setExpression("Constraints[9]", "Params.sketch11_height")
pad10 = doc.addObject("PartDesign::Pad", "Pad009")
body.addObject(pad10)
pad10.Profile = sketch11
pad10.setExpression("Length", "Params.pad10_length")

# Sketch on XZ plane
sketch12 = doc.addObject("Sketcher::SketchObject", "Sketch011")
body.addObject(sketch12)
sketch12.AttachmentSupport = (doc.XZ_Plane, [""])
sketch12.MapMode = "FlatFace"
sketch12.AttachmentOffset = App.Placement(V(0, 0, -34.5), App.Rotation())
sketch12.addGeometry([
    Part.LineSegment(V(-36, 14, 0), V(-36, 22, 0)),
    Part.LineSegment(V(-36, 22, 0), V(36, 22, 0)),
    Part.LineSegment(V(36, 22, 0), V(36, 14, 0)),
    Part.LineSegment(V(36, 14, 0), V(-36, 14, 0)),
], False)
sketch12.addConstraint([
    Sketcher.Constraint("Coincident", 0, 2, 1, 1),
    Sketcher.Constraint("Coincident", 1, 2, 2, 1),
    Sketcher.Constraint("Coincident", 2, 2, 3, 1),
    Sketcher.Constraint("Coincident", 3, 2, 0, 1),
    Sketcher.Constraint("Vertical", 0),
    Sketcher.Constraint("Horizontal", 1),
    Sketcher.Constraint("Vertical", 2),
    Sketcher.Constraint("Horizontal", 3),
    Sketcher.Constraint("DistanceX", 1, 1, 1, 2, Q("72 mm")),
    Sketcher.Constraint("DistanceY", 0, 1, 0, 2, Q("8 mm")),
    Sketcher.Constraint("DistanceX", 0, 2, -1, 1, Q("36 mm")),
    Sketcher.Constraint("DistanceY", -1, 1, 0, 2, Q("22.5 mm")),
])
sketch12.setExpression("Constraints[8]", "Params.sketch12_width")
sketch12.setExpression("Constraints[9]", "Params.sketch12_height")
pad11 = doc.addObject("PartDesign::Pad", "Pad010")
body.addObject(pad11)
pad11.Profile = sketch12
pad11.setExpression("Length", "Params.pad11_length")
pad11.Reversed = True

# Sketch on XY plane
sketch13 = doc.addObject("Sketcher::SketchObject", "Sketch012")
body.addObject(sketch13)
sketch13.AttachmentSupport = (doc.XY_Plane, [""])
sketch13.MapMode = "FlatFace"
sketch13.addGeometry([
    Part.LineSegment(V(36, 34.5, 0), V(36, 33.5, 0)),
    Part.LineSegment(V(36, 33.5, 0), V(-36, 33.5, 0)),
    Part.LineSegment(V(-36, 33.5, 0), V(-36, 34.5, 0)),
    Part.LineSegment(V(-36, 34.5, 0), V(36, 34.5, 0)),
], False)
sketch13.addConstraint([
    Sketcher.Constraint("Coincident", 0, 2, 1, 1),
    Sketcher.Constraint("Coincident", 1, 2, 2, 1),
    Sketcher.Constraint("Coincident", 2, 2, 3, 1),
    Sketcher.Constraint("Coincident", 3, 2, 0, 1),
    Sketcher.Constraint("Vertical", 0),
    Sketcher.Constraint("Horizontal", 1),
    Sketcher.Constraint("Vertical", 2),
    Sketcher.Constraint("Horizontal", 3),
    Sketcher.Constraint("DistanceX", 1, 2, 1, 1, Q("72 mm")),
    Sketcher.Constraint("DistanceY", 0, 2, 0, 1, Q("1 mm")),
    Sketcher.Constraint("DistanceX", -1, 1, 0, 2, Q("36 mm")),
    Sketcher.Constraint("DistanceY", -1, 1, 0, 2, Q("33.5 mm")),
])
sketch13.setExpression("Constraints[8]", "Params.sketch13_width")
sketch13.setExpression("Constraints[9]", "Params.sketch13_height")
pocket2 = doc.addObject("PartDesign::Pocket", "Pocket001")
body.addObject(pocket2)
pocket2.Profile = sketch13
pocket2.setExpression("Length", "Params.pocket2_length")
pocket2.Reversed = True

# Sketch on XY plane
sketch14 = doc.addObject("Sketcher::SketchObject", "Sketch013")
body.addObject(sketch14)
sketch14.AttachmentSupport = (doc.XY_Plane, [""])
sketch14.MapMode = "FlatFace"
sketch14.addGeometry([
    Part.LineSegment(V(28, -32, 0), V(28, -40, 0)),
    Part.LineSegment(V(28, -40, 0), V(-28, -40, 0)),
    Part.LineSegment(V(-28, -40, 0), V(-28, -32, 0)),
    Part.LineSegment(V(-28, -32, 0), V(28, -32, 0)),
], False)
sketch14.addConstraint([
    Sketcher.Constraint("Coincident", 0, 2, 1, 1),
    Sketcher.Constraint("Coincident", 1, 2, 2, 1),
    Sketcher.Constraint("Coincident", 2, 2, 3, 1),
    Sketcher.Constraint("Coincident", 3, 2, 0, 1),
    Sketcher.Constraint("Vertical", 0),
    Sketcher.Constraint("Horizontal", 1),
    Sketcher.Constraint("Vertical", 2),
    Sketcher.Constraint("Horizontal", 3),
    Sketcher.Constraint("DistanceX", 1, 2, 1, 1, Q("56 mm")),
    Sketcher.Constraint("DistanceY", 0, 2, 0, 1, Q("7 mm")),
    Sketcher.Constraint("DistanceX", -1, 1, 0, 2, Q("28 mm")),
    Sketcher.Constraint("DistanceY", 0, 2, -1, 1, Q("39.5 mm")),
])
sketch14.setExpression("Constraints[8]", "Params.sketch14_width")
sketch14.setExpression("Constraints[9]", "Params.sketch14_height")
pad12 = doc.addObject("PartDesign::Pad", "Pad011")
body.addObject(pad12)
pad12.Profile = sketch14
pad12.setExpression("Length", "Params.pad12_length")
pad12.Reversed = True

# Sketch on XZ plane
sketch15 = doc.addObject("Sketcher::SketchObject", "Sketch014")
body.addObject(sketch15)
sketch15.AttachmentSupport = (doc.XZ_Plane, [""])
sketch15.MapMode = "FlatFace"
sketch15.AttachmentOffset = App.Placement(V(0, 0, 32.5), App.Rotation())
sketch15.addGeometry([
    Part.LineSegment(V(-28, -65, 0), V(-28, -56, 0)),
    Part.LineSegment(V(-28, -56, 0), V(28, -56, 0)),
    Part.LineSegment(V(28, -56, 0), V(28, -65, 0)),
    Part.LineSegment(V(28, -65, 0), V(-28, -65, 0)),
], False)
sketch15.addConstraint([
    Sketcher.Constraint("Coincident", 0, 2, 1, 1),
    Sketcher.Constraint("Coincident", 1, 2, 2, 1),
    Sketcher.Constraint("Coincident", 2, 2, 3, 1),
    Sketcher.Constraint("Coincident", 3, 2, 0, 1),
    Sketcher.Constraint("Vertical", 0),
    Sketcher.Constraint("Horizontal", 1),
    Sketcher.Constraint("Vertical", 2),
    Sketcher.Constraint("Horizontal", 3),
    Sketcher.Constraint("DistanceX", 1, 1, 1, 2, Q("56 mm")),
    Sketcher.Constraint("DistanceY", 0, 1, 0, 2, Q("9 mm")),
    Sketcher.Constraint("DistanceX", 0, 2, -1, 1, Q("28 mm")),
    Sketcher.Constraint("DistanceY", 0, 2, -1, 1, Q("56 mm")),
])
sketch15.setExpression("Constraints[8]", "Params.sketch15_width")
sketch15.setExpression("Constraints[9]", "Params.sketch15_height")
pocket3 = doc.addObject("PartDesign::Pocket", "Pocket002")
body.addObject(pocket3)
pocket3.Profile = sketch15
pocket3.Type = "UpToFirst"
pocket3.Reversed = True

# Sketch on XZ plane
sketch16 = doc.addObject("Sketcher::SketchObject", "Sketch015")
body.addObject(sketch16)
sketch16.AttachmentSupport = (doc.XZ_Plane, [""])
sketch16.MapMode = "FlatFace"
sketch16.AttachmentOffset = App.Placement(V(0, 0, 32.5), App.Rotation())
sketch16.addGeometry([
    Part.Circle(V(-18, -5, 0), V(0, 0, 1), 1.2),  # 0
    Part.Circle(V(18, -5, 0), V(0, 0, 1), 1.2),  # 1
    Part.Circle(V(-23, -43.2, 0), V(0, 0, 1), 1.2),  # 2
    Part.Circle(V(-24, -5, 0), V(0, 0, 1), 1.3),  # 3
    Part.LineSegment(V(18.5, -53.2, 0), V(-20.5, -53.2, 0)),  # 4
    Part.LineSegment(V(-20.5, -53.2, 0), V(-20.5, -33.2, 0)),  # 5
    Part.LineSegment(V(-20.5, -33.2, 0), V(-10.5, -33.2, 0)),  # 6
    Part.LineSegment(V(-10.5, -33.2, 0), V(-10.5, -7.5, 0)),  # 7
    Part.LineSegment(V(-10.5, -7.5, 0), V(25.5, -7.5, 0)),  # 8
    Part.LineSegment(V(25.5, -7.5, 0), V(25.5, -32.5, 0)),  # 9
    Part.LineSegment(V(25.5, -32.5, 0), V(18.5, -32.5, 0)),  # 10
    Part.LineSegment(V(18.5, -32.5, 0), V(18.5, -53.2, 0)),  # 11
    Part.Circle(V(24, -5, 0), V(0, 0, 1), 1.3),  # 12
], False)
sketch16.addConstraint([
    Sketcher.Constraint("Coincident", 4, 2, 5, 1),
    Sketcher.Constraint("Coincident", 5, 2, 6, 1),
    Sketcher.Constraint("Coincident", 6, 2, 7, 1),
    Sketcher.Constraint("Coincident", 7, 2, 8, 1),
    Sketcher.Constraint("Coincident", 8, 2, 9, 1),
    Sketcher.Constraint("Coincident", 9, 2, 10, 1),
    Sketcher.Constraint("Coincident", 10, 2, 11, 1),
    Sketcher.Constraint("Coincident", 11, 2, 4, 1),
    Sketcher.Constraint("Horizontal", 4),
    Sketcher.Constraint("Vertical", 5),
    Sketcher.Constraint("Horizontal", 6),
    Sketcher.Constraint("Vertical", 7),
    Sketcher.Constraint("Horizontal", 8),
    Sketcher.Constraint("Vertical", 9),
    Sketcher.Constraint("Horizontal", 10),
    Sketcher.Constraint("Vertical", 11),
    Sketcher.Constraint("Equal", 0, 1),
    Sketcher.Constraint("Equal", 1, 2),
    Sketcher.Constraint("Equal", 3, 12),
    Sketcher.Constraint("Symmetric", 0, 3, 1, 3, -2),
    Sketcher.Constraint("Symmetric", 3, 3, 12, 3, -2),
    Sketcher.Constraint("Horizontal", 1, 3, 3, 3),
    Sketcher.Constraint("Diameter", 0, Q("2.5 mm")),
    Sketcher.Constraint("Diameter", 3, Q("2.6 mm")),
    Sketcher.Constraint("DistanceX", 4, 2, 4, 1, Q("39 mm")),
    Sketcher.Constraint("DistanceX", 6, 1, 6, 2, Q("10 mm")),
    Sketcher.Constraint("DistanceX", 8, 1, 8, 2, Q("36 mm")),
    Sketcher.Constraint("DistanceY", 5, 1, 5, 2, Q("20 mm")),
    Sketcher.Constraint("DistanceY", 9, 2, 9, 1, Q("25 mm")),
    Sketcher.Constraint("DistanceX", 0, 3, -1, 1, Q("18 mm")),
    Sketcher.Constraint("DistanceY", 0, 3, -1, 1, Q("5 mm")),
    Sketcher.Constraint("DistanceX", 2, 3, -1, 1, Q("23 mm")),
    Sketcher.Constraint("DistanceX", 3, 3, -1, 1, Q("24 mm")),
    Sketcher.Constraint("DistanceY", 4, 2, 2, 3, Q("10 mm")),
    Sketcher.Constraint("DistanceY", 7, 1, 7, 2, Q("25.75 mm")),
    Sketcher.Constraint("DistanceX", 4, 2, -1, 1, Q("20.5 mm")),
    Sketcher.Constraint("DistanceY", 7, 2, -1, 1, Q("7.5 mm")),
])
sketch16.setExpression("Constraints[22]", "Params.sketch16_diameter")
sketch16.setExpression("Constraints[23]", "Params.sketch16_diameter2")
sketch16.setExpression("Constraints[24]", "Params.sketch16_width")
sketch16.setExpression("Constraints[25]", "Params.sketch16_width2")
sketch16.setExpression("Constraints[26]", "Params.sketch16_width3")
pocket4 = doc.addObject("PartDesign::Pocket", "Pocket003")
body.addObject(pocket4)
pocket4.Profile = sketch16
pocket4.setExpression("Length", "Params.pocket4_length")
pocket4.Reversed = True

doc.recompute()
